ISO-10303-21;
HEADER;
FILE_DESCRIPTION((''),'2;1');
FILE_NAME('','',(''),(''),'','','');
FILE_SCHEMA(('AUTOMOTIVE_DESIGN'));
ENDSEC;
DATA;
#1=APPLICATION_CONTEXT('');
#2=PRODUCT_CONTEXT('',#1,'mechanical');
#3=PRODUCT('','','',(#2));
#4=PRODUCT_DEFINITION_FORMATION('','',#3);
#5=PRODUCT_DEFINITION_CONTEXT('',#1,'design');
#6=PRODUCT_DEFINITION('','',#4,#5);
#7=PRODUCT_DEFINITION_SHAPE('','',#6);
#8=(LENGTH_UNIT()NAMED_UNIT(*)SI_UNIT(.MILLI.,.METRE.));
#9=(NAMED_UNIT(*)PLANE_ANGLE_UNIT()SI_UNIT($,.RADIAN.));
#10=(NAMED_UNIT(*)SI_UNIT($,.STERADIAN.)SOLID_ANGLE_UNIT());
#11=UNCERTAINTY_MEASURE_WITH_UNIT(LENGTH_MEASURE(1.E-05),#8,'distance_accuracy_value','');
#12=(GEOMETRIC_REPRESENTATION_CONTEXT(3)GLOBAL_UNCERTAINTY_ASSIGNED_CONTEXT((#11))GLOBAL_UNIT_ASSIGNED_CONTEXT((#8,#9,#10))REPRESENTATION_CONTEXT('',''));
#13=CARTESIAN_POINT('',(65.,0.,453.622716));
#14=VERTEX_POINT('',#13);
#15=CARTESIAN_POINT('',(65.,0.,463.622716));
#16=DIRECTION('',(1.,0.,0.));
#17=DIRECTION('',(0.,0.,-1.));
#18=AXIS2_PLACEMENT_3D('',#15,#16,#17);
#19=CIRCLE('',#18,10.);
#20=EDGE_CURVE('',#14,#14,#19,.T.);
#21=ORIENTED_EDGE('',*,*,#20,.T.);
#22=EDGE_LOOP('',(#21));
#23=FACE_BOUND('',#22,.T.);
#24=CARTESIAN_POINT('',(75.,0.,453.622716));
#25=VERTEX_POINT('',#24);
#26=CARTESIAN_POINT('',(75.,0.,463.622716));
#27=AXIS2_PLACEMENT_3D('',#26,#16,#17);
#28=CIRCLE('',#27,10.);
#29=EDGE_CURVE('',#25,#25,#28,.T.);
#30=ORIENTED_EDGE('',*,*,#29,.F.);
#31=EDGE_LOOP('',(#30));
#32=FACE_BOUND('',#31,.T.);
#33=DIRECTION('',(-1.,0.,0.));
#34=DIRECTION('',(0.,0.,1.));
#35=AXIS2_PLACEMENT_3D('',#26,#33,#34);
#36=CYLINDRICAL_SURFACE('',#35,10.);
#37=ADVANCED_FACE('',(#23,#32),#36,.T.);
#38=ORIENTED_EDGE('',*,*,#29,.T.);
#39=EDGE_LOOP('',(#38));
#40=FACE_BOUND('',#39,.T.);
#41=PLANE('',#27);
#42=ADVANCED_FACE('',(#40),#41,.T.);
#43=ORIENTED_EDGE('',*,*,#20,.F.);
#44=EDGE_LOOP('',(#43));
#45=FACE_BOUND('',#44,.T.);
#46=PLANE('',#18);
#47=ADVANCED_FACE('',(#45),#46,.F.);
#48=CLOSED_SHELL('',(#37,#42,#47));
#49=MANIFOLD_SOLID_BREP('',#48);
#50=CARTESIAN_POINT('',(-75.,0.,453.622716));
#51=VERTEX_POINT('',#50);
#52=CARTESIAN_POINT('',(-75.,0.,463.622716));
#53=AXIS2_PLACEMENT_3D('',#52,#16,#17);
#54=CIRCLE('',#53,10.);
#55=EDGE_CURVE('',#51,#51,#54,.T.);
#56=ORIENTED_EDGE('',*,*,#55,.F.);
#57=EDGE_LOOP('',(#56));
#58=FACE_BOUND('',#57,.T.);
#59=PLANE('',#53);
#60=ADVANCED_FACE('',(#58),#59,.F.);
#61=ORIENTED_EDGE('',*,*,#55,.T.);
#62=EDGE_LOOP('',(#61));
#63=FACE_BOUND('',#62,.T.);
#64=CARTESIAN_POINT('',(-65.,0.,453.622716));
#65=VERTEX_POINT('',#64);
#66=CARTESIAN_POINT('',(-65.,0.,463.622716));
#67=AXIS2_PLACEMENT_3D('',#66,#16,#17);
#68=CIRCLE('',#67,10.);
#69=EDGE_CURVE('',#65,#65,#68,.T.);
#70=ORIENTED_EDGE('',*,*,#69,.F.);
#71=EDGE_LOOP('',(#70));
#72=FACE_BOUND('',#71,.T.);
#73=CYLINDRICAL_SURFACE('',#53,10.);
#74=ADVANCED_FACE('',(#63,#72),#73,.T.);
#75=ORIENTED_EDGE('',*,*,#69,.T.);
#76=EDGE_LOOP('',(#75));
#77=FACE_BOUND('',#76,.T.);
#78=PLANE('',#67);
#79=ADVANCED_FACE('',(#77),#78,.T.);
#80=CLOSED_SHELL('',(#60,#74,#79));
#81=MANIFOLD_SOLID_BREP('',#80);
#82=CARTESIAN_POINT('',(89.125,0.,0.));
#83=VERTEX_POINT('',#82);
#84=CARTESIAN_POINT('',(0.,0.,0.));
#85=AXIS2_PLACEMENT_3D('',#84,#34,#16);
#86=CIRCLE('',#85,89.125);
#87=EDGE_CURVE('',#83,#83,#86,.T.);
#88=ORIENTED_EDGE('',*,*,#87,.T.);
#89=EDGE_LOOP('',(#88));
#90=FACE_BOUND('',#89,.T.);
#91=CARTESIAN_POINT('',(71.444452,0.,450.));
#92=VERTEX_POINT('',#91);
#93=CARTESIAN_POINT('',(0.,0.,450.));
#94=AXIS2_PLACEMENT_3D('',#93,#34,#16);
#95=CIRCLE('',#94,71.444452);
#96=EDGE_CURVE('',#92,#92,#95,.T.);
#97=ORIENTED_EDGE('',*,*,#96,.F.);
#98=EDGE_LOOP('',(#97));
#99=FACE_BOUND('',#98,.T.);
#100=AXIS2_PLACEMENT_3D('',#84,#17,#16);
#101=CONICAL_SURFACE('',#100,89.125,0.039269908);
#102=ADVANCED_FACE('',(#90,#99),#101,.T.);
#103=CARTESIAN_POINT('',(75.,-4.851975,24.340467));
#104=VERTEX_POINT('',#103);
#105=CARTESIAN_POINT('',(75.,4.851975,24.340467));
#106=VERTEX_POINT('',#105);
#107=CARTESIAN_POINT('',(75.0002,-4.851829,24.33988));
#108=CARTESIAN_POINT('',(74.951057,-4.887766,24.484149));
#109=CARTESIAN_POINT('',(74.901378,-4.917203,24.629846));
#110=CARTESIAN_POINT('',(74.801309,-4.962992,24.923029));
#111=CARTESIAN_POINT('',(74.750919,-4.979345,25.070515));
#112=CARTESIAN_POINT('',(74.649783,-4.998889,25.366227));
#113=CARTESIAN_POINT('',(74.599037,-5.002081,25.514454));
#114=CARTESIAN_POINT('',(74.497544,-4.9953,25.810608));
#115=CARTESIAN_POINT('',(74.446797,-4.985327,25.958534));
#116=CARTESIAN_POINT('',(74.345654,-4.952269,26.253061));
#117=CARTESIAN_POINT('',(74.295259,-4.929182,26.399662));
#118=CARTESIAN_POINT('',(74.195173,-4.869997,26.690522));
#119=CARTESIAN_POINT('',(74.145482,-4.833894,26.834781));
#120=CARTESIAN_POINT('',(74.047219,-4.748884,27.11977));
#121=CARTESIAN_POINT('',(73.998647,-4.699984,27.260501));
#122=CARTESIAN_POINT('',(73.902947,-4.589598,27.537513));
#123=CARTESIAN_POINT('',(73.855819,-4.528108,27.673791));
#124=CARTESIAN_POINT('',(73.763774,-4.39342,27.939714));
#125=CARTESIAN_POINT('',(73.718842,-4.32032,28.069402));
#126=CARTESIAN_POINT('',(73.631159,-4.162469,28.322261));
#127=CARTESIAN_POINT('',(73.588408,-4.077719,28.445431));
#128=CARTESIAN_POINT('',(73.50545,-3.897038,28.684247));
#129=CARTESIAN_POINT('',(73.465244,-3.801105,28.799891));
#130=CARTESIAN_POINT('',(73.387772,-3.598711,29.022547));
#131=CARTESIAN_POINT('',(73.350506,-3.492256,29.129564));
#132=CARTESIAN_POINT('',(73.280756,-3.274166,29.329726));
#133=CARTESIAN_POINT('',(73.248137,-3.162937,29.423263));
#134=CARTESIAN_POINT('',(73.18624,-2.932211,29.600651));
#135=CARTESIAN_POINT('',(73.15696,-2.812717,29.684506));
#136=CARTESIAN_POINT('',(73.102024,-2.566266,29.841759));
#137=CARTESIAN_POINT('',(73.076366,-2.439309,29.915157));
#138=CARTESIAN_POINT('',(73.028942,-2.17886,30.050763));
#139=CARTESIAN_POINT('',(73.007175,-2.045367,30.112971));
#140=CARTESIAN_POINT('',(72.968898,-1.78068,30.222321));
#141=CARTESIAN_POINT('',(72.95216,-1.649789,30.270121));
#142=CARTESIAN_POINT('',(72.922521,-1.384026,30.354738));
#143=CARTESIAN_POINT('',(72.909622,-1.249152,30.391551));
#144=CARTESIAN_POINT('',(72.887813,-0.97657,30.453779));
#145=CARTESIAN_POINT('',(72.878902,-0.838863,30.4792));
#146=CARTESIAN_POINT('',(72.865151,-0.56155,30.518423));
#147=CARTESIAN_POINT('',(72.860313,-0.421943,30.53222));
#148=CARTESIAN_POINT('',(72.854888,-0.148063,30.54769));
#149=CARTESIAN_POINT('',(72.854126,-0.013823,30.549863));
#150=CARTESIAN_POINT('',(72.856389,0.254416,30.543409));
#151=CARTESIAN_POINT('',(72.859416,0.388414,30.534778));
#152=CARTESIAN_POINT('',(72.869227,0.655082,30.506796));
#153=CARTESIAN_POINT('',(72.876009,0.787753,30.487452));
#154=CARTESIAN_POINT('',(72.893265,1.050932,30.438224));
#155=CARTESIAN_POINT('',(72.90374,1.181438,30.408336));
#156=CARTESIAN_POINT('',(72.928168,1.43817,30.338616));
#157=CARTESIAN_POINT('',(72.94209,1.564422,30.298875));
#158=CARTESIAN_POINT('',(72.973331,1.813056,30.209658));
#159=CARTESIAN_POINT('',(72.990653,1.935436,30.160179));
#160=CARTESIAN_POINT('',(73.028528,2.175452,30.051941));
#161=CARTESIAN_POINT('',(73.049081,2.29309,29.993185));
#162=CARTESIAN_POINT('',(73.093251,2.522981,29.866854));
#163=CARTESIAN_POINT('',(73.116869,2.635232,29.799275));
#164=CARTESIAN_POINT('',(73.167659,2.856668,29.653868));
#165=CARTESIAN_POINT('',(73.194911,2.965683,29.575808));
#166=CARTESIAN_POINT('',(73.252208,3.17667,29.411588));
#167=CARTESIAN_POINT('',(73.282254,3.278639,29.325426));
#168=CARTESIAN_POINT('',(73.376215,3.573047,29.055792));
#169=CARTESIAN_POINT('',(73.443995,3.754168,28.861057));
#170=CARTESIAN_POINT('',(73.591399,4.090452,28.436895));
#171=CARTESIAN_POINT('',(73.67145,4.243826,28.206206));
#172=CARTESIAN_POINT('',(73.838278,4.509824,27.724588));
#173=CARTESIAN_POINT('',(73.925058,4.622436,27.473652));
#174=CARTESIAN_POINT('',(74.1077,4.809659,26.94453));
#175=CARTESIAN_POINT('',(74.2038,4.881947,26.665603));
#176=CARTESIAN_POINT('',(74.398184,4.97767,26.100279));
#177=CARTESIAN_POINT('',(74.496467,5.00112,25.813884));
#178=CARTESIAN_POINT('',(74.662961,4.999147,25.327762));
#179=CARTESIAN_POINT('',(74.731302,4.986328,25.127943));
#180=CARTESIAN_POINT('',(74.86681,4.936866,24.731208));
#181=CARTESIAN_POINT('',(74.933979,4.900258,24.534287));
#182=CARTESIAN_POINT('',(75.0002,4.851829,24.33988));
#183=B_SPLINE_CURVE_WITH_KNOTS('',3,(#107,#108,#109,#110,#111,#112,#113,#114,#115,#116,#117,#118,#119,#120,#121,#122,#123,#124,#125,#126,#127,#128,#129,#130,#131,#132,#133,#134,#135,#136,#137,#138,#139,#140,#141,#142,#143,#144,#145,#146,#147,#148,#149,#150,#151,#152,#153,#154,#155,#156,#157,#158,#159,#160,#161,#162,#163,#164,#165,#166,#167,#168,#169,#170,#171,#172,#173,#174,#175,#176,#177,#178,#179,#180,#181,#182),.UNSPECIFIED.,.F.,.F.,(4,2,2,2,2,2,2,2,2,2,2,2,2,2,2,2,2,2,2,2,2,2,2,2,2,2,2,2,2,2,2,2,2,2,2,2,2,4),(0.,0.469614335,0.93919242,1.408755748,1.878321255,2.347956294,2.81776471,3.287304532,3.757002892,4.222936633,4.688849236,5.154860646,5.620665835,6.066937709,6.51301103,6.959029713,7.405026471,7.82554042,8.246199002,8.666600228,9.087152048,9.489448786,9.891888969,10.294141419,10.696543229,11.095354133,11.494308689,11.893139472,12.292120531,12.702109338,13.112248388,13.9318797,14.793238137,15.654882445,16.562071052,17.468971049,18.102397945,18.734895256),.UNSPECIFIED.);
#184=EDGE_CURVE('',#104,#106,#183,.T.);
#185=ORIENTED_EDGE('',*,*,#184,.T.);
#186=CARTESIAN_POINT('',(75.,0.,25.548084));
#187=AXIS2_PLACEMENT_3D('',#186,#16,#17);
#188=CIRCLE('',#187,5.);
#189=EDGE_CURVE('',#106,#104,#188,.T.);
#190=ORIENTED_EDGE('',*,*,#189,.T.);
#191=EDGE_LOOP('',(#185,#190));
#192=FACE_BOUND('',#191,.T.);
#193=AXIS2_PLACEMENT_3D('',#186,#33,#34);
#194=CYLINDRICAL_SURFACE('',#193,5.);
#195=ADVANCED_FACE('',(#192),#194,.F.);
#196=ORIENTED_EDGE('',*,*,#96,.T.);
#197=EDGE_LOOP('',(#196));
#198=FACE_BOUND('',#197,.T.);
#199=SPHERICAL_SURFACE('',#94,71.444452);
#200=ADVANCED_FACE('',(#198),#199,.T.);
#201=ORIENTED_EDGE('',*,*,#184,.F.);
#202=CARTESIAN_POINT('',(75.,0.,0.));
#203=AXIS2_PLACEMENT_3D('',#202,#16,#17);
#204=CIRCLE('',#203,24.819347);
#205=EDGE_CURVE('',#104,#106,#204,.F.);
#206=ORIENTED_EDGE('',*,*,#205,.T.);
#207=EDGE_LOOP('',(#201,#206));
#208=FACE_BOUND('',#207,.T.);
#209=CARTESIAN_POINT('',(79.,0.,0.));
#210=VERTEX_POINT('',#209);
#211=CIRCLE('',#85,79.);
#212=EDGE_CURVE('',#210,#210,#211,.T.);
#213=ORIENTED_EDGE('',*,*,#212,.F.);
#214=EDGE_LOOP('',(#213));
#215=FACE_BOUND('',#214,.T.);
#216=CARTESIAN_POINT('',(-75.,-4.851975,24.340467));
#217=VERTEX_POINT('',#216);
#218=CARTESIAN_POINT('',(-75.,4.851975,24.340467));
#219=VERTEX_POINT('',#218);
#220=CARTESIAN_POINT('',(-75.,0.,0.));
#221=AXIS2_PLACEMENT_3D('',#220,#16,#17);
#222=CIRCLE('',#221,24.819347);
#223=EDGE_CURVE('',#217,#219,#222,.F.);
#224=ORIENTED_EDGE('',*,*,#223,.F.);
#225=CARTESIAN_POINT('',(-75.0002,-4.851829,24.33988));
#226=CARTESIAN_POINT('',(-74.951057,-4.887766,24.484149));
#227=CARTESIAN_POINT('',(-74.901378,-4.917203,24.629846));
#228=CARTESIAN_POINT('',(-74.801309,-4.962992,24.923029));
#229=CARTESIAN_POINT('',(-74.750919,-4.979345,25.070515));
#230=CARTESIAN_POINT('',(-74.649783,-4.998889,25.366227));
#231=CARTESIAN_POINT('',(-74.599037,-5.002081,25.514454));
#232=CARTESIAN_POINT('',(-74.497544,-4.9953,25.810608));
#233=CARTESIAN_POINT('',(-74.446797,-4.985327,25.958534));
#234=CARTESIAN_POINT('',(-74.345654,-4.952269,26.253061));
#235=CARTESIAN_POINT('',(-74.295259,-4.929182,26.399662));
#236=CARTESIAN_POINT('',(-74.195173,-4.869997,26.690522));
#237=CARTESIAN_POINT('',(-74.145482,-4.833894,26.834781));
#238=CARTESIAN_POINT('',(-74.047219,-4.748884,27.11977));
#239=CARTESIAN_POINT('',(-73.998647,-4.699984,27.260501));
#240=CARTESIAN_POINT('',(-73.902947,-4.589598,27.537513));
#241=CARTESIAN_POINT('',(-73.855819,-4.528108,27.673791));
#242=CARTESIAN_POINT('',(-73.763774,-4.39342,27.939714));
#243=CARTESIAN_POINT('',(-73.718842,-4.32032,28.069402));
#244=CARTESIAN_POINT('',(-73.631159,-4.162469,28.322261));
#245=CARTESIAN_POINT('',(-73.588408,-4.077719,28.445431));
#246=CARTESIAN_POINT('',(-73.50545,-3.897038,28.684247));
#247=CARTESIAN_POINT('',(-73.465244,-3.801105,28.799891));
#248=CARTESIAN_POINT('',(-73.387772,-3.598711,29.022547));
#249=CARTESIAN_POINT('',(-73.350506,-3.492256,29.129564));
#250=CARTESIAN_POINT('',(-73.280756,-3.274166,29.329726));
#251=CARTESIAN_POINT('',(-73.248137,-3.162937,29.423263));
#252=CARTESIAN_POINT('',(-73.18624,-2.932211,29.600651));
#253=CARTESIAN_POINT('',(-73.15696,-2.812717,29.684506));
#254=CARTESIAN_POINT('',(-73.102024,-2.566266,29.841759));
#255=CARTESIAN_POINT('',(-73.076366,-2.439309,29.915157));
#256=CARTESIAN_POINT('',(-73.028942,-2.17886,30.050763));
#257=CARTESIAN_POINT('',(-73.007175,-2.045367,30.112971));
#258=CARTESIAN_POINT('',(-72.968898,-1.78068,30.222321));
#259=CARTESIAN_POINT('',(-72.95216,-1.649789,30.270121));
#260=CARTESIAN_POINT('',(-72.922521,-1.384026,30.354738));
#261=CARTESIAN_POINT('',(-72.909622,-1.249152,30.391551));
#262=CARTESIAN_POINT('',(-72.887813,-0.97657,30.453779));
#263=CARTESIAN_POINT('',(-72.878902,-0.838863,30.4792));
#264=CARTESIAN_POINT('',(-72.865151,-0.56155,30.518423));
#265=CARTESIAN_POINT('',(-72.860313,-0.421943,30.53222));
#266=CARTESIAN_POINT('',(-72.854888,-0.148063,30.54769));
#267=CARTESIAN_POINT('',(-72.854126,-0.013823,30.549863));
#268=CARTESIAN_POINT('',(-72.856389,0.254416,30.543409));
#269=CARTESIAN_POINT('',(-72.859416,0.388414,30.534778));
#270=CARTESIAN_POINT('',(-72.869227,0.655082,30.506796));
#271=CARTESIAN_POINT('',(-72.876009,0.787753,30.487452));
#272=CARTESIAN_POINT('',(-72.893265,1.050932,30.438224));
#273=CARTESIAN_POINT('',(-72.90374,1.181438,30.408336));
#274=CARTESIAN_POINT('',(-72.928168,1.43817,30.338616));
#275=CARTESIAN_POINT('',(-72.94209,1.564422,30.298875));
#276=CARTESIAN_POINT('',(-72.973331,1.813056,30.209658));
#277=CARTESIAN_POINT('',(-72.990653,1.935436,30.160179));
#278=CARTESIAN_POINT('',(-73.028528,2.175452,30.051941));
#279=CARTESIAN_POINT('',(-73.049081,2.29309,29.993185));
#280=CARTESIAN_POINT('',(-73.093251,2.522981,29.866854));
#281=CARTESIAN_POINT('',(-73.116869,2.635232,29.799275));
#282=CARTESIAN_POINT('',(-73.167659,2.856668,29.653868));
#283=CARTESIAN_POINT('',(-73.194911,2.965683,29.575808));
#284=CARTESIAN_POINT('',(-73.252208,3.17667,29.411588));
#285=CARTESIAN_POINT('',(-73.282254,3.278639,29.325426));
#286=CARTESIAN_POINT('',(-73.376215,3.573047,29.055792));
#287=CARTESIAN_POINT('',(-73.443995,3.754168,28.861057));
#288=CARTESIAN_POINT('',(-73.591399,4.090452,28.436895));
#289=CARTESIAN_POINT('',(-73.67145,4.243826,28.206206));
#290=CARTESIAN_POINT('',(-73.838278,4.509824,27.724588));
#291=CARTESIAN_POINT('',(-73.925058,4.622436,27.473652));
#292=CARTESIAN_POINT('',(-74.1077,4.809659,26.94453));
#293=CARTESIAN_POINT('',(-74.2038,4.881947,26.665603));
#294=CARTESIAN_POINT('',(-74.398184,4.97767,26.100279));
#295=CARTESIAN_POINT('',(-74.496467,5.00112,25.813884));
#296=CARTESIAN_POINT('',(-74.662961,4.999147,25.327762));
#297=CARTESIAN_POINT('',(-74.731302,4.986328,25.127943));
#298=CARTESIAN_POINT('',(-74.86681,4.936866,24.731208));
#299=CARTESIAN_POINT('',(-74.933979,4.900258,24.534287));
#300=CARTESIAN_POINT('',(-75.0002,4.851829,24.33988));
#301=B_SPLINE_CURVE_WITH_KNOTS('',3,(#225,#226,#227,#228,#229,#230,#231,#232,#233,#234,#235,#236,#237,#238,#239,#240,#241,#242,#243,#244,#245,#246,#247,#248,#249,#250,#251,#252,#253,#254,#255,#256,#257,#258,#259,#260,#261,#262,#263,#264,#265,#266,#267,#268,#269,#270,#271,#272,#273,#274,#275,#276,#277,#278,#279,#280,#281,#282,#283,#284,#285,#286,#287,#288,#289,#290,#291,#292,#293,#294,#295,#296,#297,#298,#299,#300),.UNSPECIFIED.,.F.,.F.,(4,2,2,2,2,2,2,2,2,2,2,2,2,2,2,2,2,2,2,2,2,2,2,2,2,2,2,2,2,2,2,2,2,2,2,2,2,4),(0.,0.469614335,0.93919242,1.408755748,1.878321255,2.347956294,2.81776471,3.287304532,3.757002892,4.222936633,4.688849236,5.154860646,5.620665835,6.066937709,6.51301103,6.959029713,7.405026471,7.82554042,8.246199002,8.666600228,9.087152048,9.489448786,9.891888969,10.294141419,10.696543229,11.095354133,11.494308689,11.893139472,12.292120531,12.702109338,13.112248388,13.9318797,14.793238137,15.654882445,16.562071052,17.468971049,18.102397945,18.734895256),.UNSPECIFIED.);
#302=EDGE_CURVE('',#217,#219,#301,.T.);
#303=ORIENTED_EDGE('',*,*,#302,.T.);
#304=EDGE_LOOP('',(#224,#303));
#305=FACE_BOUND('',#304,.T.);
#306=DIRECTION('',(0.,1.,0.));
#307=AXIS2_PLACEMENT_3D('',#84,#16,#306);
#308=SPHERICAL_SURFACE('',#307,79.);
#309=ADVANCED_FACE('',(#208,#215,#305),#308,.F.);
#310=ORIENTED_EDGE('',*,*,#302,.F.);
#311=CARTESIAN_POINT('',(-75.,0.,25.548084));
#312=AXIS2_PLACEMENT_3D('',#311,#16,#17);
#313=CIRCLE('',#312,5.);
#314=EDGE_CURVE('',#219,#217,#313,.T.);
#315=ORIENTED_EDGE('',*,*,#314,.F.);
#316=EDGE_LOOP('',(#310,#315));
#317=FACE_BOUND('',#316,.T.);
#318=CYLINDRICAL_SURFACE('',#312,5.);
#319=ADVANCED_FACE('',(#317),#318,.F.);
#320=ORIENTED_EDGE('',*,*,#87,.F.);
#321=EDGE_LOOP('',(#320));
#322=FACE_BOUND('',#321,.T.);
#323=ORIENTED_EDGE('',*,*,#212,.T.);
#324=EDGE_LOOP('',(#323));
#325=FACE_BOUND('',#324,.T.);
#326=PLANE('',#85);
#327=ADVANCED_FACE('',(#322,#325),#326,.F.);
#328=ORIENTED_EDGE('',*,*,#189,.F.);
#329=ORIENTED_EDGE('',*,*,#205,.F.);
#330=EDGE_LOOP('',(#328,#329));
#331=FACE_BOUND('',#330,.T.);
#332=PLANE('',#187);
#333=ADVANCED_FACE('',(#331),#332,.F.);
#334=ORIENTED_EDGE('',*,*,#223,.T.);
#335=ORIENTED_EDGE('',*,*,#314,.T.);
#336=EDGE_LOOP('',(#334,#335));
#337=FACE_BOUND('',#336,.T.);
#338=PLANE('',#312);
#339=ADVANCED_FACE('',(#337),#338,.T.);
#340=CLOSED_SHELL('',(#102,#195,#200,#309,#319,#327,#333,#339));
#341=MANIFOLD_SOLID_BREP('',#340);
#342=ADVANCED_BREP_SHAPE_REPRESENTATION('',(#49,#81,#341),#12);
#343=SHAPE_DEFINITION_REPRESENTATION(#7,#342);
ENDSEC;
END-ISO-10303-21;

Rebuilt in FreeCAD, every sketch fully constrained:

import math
import FreeCAD as App
import Part
import Sketcher
from FreeCAD import Vector
Q = App.Units.Quantity

doc = App.newDocument("Part")
body = doc.addObject("PartDesign::Body", "Body")

# Sketch on XY plane
sketch1 = body.newObject("Sketcher::SketchObject", "Sketch")
sketch1.AttachmentSupport = (doc.getObject("XY_Plane"), [""])
sketch1.MapMode = "FlatFace"
sketch1.addGeometry(Part.Circle(Vector(0, 0, 0), Vector(0, 0, 1), 89), False)
sketch1.addConstraint(Sketcher.Constraint("Coincident", 0, 3, -1, 1))
sketch1.addConstraint(Sketcher.Constraint("Diameter", 0, Q("178.25 mm")))
pad1 = body.newObject("PartDesign::Pad", "Pad")
pad1.Profile = sketch1
pad1.Length = 450
pad1.TaperAngle = -2.25

# Sketch on XY plane
sketch2 = body.newObject("Sketcher::SketchObject", "Sketch001")
sketch2.AttachmentSupport = (doc.getObject("XY_Plane"), [""])
sketch2.MapMode = "FlatFace"
sketch2.AttachmentOffset = App.Placement(Vector(0, 0, 450), App.Rotation())
sketch2.addGeometry(Part.LineSegment(Vector(0, -71, 0), Vector(0, 71, 0)), False)
sketch2.addGeometry(Part.ArcOfCircle(Part.Circle(Vector(0, 0, 0), Vector(0, 0, 1), 71), math.radians(90), math.radians(270)), False)
sketch2.addConstraint(Sketcher.Constraint("Coincident", 0, 1, 1, 2))
sketch2.addConstraint(Sketcher.Constraint("Coincident", 1, 1, 0, 2))
sketch2.addConstraint(Sketcher.Constraint("Vertical", 0))
sketch2.addConstraint(Sketcher.Constraint("Coincident", 1, 3, -1, 1))
sketch2.addConstraint(Sketcher.Constraint("PointOnObject", 0, 1, -2))
sketch2.addConstraint(Sketcher.Constraint("Radius", 1, Q("71.444452 mm")))
revolution = body.newObject("PartDesign::Revolution", "Revolution")
revolution.Profile = sketch2
revolution.ReferenceAxis = (sketch2, ["V_Axis"])
revolution.Angle = 360

# Sketch on XY plane
sketch3 = body.newObject("Sketcher::SketchObject", "Sketch002")
sketch3.AttachmentSupport = (doc.getObject("XY_Plane"), [""])
sketch3.MapMode = "FlatFace"
sketch3.addGeometry(Part.LineSegment(Vector(-79, 0, 0), Vector(79, 0, 0)), False)
sketch3.addGeometry(Part.ArcOfCircle(Part.Circle(Vector(0, 0, 0), Vector(0, 0, 1), 79), math.radians(180), math.radians(360)), False)
sketch3.addConstraint(Sketcher.Constraint("Coincident", 0, 1, 1, 1))
sketch3.addConstraint(Sketcher.Constraint("Coincident", 1, 2, 0, 2))
sketch3.addConstraint(Sketcher.Constraint("Horizontal", 0))
sketch3.addConstraint(Sketcher.Constraint("Coincident", 1, 3, -1, 1))
sketch3.addConstraint(Sketcher.Constraint("PointOnObject", 0, 1, -1))
sketch3.addConstraint(Sketcher.Constraint("Radius", 1, Q("79 mm")))
groove = body.newObject("PartDesign::Groove", "Groove")
groove.Profile = sketch3
groove.ReferenceAxis = (sketch3, ["H_Axis"])
groove.Angle = 360

# Sketch on YZ plane
sketch4 = body.newObject("Sketcher::SketchObject", "Sketch003")
sketch4.AttachmentSupport = (doc.getObject("YZ_Plane"), [""])
sketch4.MapMode = "FlatFace"
sketch4.AttachmentOffset = App.Placement(Vector(0, 0, -65), App.Rotation())
sketch4.addGeometry(Part.Circle(Vector(0, 26, 0), Vector(0, 0, 1), 5), False)
sketch4.addConstraint(Sketcher.Constraint("PointOnObject", 0, 3, -2))
sketch4.addConstraint(Sketcher.Constraint("Diameter", 0, Q("10 mm")))
sketch4.addConstraint(Sketcher.Constraint("DistanceY", -1, 1, 0, 3, Q("25.548084 mm")))
pocket1 = body.newObject("PartDesign::Pocket", "Pocket")
pocket1.Profile = sketch4
pocket1.Length = 10

# Sketch on YZ plane
sketch5 = body.newObject("Sketcher::SketchObject", "Sketch004")
sketch5.AttachmentSupport = (doc.getObject("YZ_Plane"), [""])
sketch5.MapMode = "FlatFace"
sketch5.AttachmentOffset = App.Placement(Vector(0, 0, 75), App.Rotation())
sketch5.addGeometry(Part.Circle(Vector(0, 26, 0), Vector(0, 0, 1), 5), False)
sketch5.addConstraint(Sketcher.Constraint("PointOnObject", 0, 3, -2))
sketch5.addConstraint(Sketcher.Constraint("Diameter", 0, Q("10 mm")))
sketch5.addConstraint(Sketcher.Constraint("DistanceY", -1, 1, 0, 3, Q("25.548084 mm")))
pocket2 = body.newObject("PartDesign::Pocket", "Pocket001")
pocket2.Profile = sketch5
pocket2.Length = 10
body2 = doc.addObject("PartDesign::Body", "Body001")

# Sketch on YZ plane
sketch6 = body2.newObject("Sketcher::SketchObject", "Sketch005")
sketch6.AttachmentSupport = (doc.getObject("YZ_Plane001"), [""])
sketch6.MapMode = "FlatFace"
sketch6.AttachmentOffset = App.Placement(Vector(0, 0, -65), App.Rotation())
sketch6.addGeometry(Part.Circle(Vector(0, 464, 0), Vector(0, 0, 1), 10), False)
sketch6.addConstraint(Sketcher.Constraint("PointOnObject", 0, 3, -2))
sketch6.addConstraint(Sketcher.Constraint("Diameter", 0, Q("20 mm")))
sketch6.addConstraint(Sketcher.Constraint("DistanceY", -1, 1, 0, 3, Q("463.622716 mm")))
pad2 = body2.newObject("PartDesign::Pad", "Pad001")
pad2.Profile = sketch6
pad2.Length = 10
pad2.Reversed = True
body3 = doc.addObject("PartDesign::Body", "Body002")

# Sketch on YZ plane
sketch7 = body3.newObject("Sketcher::SketchObject", "Sketch006")
sketch7.AttachmentSupport = (doc.getObject("YZ_Plane002"), [""])
sketch7.MapMode = "FlatFace"
sketch7.AttachmentOffset = App.Placement(Vector(0, 0, 65), App.Rotation())
sketch7.addGeometry(Part.Circle(Vector(0, 464, 0), Vector(0, 0, 1), 10), False)
sketch7.addConstraint(Sketcher.Constraint("PointOnObject", 0, 3, -2))
sketch7.addConstraint(Sketcher.Constraint("Diameter", 0, Q("20 mm")))
sketch7.addConstraint(Sketcher.Constraint("DistanceY", -1, 1, 0, 3, Q("463.622716 mm")))
pad3 = body3.newObject("PartDesign::Pad", "Pad002")
pad3.Profile = sketch7
pad3.Length = 10

doc.recompute()
